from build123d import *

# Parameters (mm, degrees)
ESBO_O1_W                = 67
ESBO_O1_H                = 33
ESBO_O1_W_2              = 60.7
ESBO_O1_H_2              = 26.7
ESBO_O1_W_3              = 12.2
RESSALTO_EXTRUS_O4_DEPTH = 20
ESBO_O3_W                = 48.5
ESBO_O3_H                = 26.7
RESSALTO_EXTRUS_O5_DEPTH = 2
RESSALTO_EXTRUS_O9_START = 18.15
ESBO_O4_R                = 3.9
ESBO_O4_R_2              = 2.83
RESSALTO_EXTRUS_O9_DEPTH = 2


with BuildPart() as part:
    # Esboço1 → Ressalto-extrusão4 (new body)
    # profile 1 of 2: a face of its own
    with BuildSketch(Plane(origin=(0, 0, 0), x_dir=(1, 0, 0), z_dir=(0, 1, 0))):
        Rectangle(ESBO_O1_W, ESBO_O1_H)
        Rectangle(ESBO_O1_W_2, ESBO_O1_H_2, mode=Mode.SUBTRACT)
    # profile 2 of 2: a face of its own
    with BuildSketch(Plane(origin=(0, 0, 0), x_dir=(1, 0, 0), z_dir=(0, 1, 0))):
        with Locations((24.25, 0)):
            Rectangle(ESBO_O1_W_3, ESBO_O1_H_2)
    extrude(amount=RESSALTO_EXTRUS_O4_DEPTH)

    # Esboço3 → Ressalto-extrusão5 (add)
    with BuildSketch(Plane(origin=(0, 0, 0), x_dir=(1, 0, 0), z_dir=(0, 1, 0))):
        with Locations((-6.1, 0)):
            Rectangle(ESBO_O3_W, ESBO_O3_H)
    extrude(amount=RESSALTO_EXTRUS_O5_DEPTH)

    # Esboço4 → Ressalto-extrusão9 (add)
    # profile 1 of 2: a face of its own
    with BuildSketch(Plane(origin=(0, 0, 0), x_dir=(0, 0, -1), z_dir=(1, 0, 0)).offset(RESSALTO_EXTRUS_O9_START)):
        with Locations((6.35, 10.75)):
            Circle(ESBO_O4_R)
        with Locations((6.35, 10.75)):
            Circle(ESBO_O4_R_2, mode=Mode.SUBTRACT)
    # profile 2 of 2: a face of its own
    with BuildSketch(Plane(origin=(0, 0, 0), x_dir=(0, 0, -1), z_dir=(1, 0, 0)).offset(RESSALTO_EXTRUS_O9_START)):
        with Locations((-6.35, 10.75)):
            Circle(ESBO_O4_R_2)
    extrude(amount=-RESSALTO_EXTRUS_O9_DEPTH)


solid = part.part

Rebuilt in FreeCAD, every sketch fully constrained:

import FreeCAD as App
import Part
import Sketcher
from FreeCAD import Vector
Q = App.Units.Quantity

doc = App.newDocument("Part")
body = doc.addObject("PartDesign::Body", "Body")

# Sketch on XZ plane
sketch1 = doc.addObject("Sketcher::SketchObject", "Sketch")
body.addObject(sketch1)
sketch1.AttachmentSupport = (doc.XZ_Plane, [""])
sketch1.MapMode = "FlatFace"
sketch1.addGeometry(Part.LineSegment(Vector(-34, -16, 0), Vector(-34, 16, 0)), False)
sketch1.addGeometry(Part.LineSegment(Vector(-34, 16, 0), Vector(34, 16, 0)), False)
sketch1.addGeometry(Part.LineSegment(Vector(34, 16, 0), Vector(34, -16, 0)), False)
sketch1.addGeometry(Part.LineSegment(Vector(34, -16, 0), Vector(-34, -16, 0)), False)
sketch1.addGeometry(Part.LineSegment(Vector(18, 13, 0), Vector(-30, 13, 0)), False)
sketch1.addGeometry(Part.LineSegment(Vector(-30, 13, 0), Vector(-30, -13, 0)), False)
sketch1.addGeometry(Part.LineSegment(Vector(-30, -13, 0), Vector(18, -13, 0)), False)
sketch1.addGeometry(Part.LineSegment(Vector(18, -13, 0), Vector(18, 13, 0)), False)
sketch1.addConstraint(Sketcher.Constraint("Coincident", 0, 2, 1, 1))
sketch1.addConstraint(Sketcher.Constraint("Coincident", 1, 2, 2, 1))
sketch1.addConstraint(Sketcher.Constraint("Coincident", 2, 2, 3, 1))
sketch1.addConstraint(Sketcher.Constraint("Coincident", 3, 2, 0, 1))
sketch1.addConstraint(Sketcher.Constraint("Coincident", 4, 2, 5, 1))
sketch1.addConstraint(Sketcher.Constraint("Coincident", 5, 2, 6, 1))
sketch1.addConstraint(Sketcher.Constraint("Coincident", 6, 2, 7, 1))
sketch1.addConstraint(Sketcher.Constraint("Coincident", 7, 2, 4, 1))
sketch1.addConstraint(Sketcher.Constraint("Vertical", 0))
sketch1.addConstraint(Sketcher.Constraint("Horizontal", 1))
sketch1.addConstraint(Sketcher.Constraint("Vertical", 2))
sketch1.addConstraint(Sketcher.Constraint("Horizontal", 3))
sketch1.addConstraint(Sketcher.Constraint("Horizontal", 4))
sketch1.addConstraint(Sketcher.Constraint("Vertical", 5))
sketch1.addConstraint(Sketcher.Constraint("Horizontal", 6))
sketch1.addConstraint(Sketcher.Constraint("Vertical", 7))
sketch1.addConstraint(Sketcher.Constraint("Symmetric", 0, 2, 2, 2, -1, 1))
sketch1.addConstraint(Sketcher.Constraint("DistanceX", 1, 1, 1, 2, Q("67 mm")))
sketch1.addConstraint(Sketcher.Constraint("DistanceY", 0, 1, 0, 2, Q("33 mm")))
sketch1.addConstraint(Sketcher.Constraint("DistanceX", 4, 2, 4, 1, Q("48.5 mm")))
sketch1.addConstraint(Sketcher.Constraint("DistanceY", 5, 2, 5, 1, Q("26.7 mm")))
sketch1.addConstraint(Sketcher.Constraint("DistanceX", 4, 2, -1, 1, Q("30.35 mm")))
sketch1.addConstraint(Sketcher.Constraint("DistanceY", -1, 1, 4, 2, Q("13.35 mm")))
pad1 = doc.addObject("PartDesign::Pad", "Pad")
body.addObject(pad1)
pad1.Profile = sketch1
pad1.Length = 20
pad1.Reversed = True

# Sketch on XZ plane
sketch2 = doc.addObject("Sketcher::SketchObject", "Sketch001")
body.addObject(sketch2)
sketch2.AttachmentSupport = (doc.XZ_Plane, [""])
sketch2.MapMode = "FlatFace"
sketch2.addGeometry(Part.LineSegment(Vector(-30, -13, 0), Vector(-30, 13, 0)), False)
sketch2.addGeometry(Part.LineSegment(Vector(-30, 13, 0), Vector(18, 13, 0)), False)
sketch2.addGeometry(Part.LineSegment(Vector(18, 13, 0), Vector(18, -13, 0)), False)
sketch2.addGeometry(Part.LineSegment(Vector(18, -13, 0), Vector(-30, -13, 0)), False)
sketch2.addConstraint(Sketcher.Constraint("Coincident", 0, 2, 1, 1))
sketch2.addConstraint(Sketcher.Constraint("Coincident", 1, 2, 2, 1))
sketch2.addConstraint(Sketcher.Constraint("Coincident", 2, 2, 3, 1))
sketch2.addConstraint(Sketcher.Constraint("Coincident", 3, 2, 0, 1))
sketch2.addConstraint(Sketcher.Constraint("Vertical", 0))
sketch2.addConstraint(Sketcher.Constraint("Horizontal", 1))
sketch2.addConstraint(Sketcher.Constraint("Vertical", 2))
sketch2.addConstraint(Sketcher.Constraint("Horizontal", 3))
sketch2.addConstraint(Sketcher.Constraint("DistanceX", 1, 1, 1, 2, Q("48.5 mm")))
sketch2.addConstraint(Sketcher.Constraint("DistanceY", 0, 1, 0, 2, Q("26.7 mm")))
sketch2.addConstraint(Sketcher.Constraint("DistanceX", 0, 2, -1, 1, Q("30.35 mm")))
sketch2.addConstraint(Sketcher.Constraint("DistanceY", -1, 1, 0, 2, Q("13.35 mm")))
pad2 = doc.addObject("PartDesign::Pad", "Pad001")
body.addObject(pad2)
pad2.Profile = sketch2
pad2.Length = 2
pad2.Reversed = True

# Sketch on YZ plane
sketch3 = doc.addObject("Sketcher::SketchObject", "Sketch002")
body.addObject(sketch3)
sketch3.AttachmentSupport = (doc.YZ_Plane, [""])
sketch3.MapMode = "FlatFace"
sketch3.AttachmentOffset = App.Placement(Vector(0, 0, 18.15), App.Rotation())
sketch3.addGeometry(Part.Circle(Vector(10.8, -6.3, 0), Vector(0, 0, 1), 3.9), False)
sketch3.addGeometry(Part.Circle(Vector(10.8, -6.3, 0), Vector(0, 0, 1), 2.8), False)
sketch3.addGeometry(Part.Circle(Vector(10.8, 6.3, 0), Vector(0, 0, 1), 2.8), False)
sketch3.addConstraint(Sketcher.Constraint("Coincident", 1, 3, 0, 3))
sketch3.addConstraint(Sketcher.Constraint("Equal", 1, 2))
sketch3.addConstraint(Sketcher.Constraint("Symmetric", 0, 3, 2, 3, -1))
sketch3.addConstraint(Sketcher.Constraint("Diameter", 0, Q("7.8 mm")))
sketch3.addConstraint(Sketcher.Constraint("Diameter", 1, Q("5.66 mm")))
sketch3.addConstraint(Sketcher.Constraint("DistanceY", 0, 3, 2, 3, Q("12.7 mm")))
sketch3.addConstraint(Sketcher.Constraint("DistanceX", -1, 1, 0, 3, Q("10.75 mm")))
pad3 = doc.addObject("PartDesign::Pad", "Pad002")
body.addObject(pad3)
pad3.Profile = sketch3
pad3.Length = 2
pad3.Reversed = True

doc.recompute()
